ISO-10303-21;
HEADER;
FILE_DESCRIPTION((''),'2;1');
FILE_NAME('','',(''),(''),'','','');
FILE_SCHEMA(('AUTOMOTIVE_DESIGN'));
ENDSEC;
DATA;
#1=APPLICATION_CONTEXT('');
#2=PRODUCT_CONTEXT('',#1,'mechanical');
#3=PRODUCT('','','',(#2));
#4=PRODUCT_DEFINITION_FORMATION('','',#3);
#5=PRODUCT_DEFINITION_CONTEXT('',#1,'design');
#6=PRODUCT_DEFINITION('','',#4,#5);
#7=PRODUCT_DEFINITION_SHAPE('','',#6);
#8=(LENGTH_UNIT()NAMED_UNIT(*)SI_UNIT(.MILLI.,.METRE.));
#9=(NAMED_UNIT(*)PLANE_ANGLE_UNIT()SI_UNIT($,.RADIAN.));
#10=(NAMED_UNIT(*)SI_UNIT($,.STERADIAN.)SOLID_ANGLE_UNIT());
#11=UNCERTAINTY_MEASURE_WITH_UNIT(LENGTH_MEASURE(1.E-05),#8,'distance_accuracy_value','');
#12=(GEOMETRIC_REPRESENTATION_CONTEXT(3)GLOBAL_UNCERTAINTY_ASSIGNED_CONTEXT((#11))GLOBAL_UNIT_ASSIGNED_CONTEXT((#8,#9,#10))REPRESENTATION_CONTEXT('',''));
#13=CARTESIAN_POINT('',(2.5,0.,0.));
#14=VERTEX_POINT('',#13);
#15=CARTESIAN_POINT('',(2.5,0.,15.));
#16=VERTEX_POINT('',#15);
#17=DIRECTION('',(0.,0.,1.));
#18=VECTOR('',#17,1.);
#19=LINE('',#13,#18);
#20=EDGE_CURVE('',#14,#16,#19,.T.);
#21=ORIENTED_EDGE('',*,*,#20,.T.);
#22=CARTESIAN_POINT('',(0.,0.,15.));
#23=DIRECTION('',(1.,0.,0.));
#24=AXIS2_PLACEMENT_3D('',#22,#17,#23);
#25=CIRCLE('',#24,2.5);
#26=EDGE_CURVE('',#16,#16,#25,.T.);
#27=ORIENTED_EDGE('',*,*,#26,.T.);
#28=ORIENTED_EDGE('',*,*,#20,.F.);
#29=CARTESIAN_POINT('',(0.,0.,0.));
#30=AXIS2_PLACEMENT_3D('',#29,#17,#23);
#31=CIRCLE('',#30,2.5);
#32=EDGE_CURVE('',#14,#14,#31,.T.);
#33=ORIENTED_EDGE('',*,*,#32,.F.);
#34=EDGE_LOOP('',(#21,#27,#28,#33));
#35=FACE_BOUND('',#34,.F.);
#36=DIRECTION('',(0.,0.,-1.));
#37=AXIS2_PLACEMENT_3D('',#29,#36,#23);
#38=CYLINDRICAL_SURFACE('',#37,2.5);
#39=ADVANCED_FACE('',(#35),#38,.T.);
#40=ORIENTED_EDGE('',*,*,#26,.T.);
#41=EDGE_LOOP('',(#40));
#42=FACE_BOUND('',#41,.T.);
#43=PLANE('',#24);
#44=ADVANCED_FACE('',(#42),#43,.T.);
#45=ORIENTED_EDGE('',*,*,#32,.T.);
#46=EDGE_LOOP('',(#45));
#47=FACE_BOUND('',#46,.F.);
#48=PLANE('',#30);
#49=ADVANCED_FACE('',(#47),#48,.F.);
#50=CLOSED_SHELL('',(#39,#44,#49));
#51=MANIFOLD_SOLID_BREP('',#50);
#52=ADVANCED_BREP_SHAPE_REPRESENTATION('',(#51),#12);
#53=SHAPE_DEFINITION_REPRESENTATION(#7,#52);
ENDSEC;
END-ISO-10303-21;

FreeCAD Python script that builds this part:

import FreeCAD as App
import Part
import Sketcher
Q = App.Units.Quantity

doc = App.newDocument("Part")
body = doc.addObject("PartDesign::Body", "Body")

# Sketch on XY plane
sketch1 = body.newObject("Sketcher::SketchObject", "Sketch")
sketch1.AttachmentSupport = (doc.getObject("XY_Plane"), [""])
sketch1.MapMode = "FlatFace"
sketch1.addGeometry(Part.Circle(App.Vector(0, 0, 0), App.Vector(0, 0, 1), 2.5), False)
sketch1.addConstraint(Sketcher.Constraint("Coincident", 0, 3, -1, 1))
sketch1.addConstraint(Sketcher.Constraint("Diameter", 0, Q("5 mm")))
pad1 = body.newObject("PartDesign::Pad", "Pad")
pad1.Profile = sketch1
pad1.Length = 15

doc.recompute()
